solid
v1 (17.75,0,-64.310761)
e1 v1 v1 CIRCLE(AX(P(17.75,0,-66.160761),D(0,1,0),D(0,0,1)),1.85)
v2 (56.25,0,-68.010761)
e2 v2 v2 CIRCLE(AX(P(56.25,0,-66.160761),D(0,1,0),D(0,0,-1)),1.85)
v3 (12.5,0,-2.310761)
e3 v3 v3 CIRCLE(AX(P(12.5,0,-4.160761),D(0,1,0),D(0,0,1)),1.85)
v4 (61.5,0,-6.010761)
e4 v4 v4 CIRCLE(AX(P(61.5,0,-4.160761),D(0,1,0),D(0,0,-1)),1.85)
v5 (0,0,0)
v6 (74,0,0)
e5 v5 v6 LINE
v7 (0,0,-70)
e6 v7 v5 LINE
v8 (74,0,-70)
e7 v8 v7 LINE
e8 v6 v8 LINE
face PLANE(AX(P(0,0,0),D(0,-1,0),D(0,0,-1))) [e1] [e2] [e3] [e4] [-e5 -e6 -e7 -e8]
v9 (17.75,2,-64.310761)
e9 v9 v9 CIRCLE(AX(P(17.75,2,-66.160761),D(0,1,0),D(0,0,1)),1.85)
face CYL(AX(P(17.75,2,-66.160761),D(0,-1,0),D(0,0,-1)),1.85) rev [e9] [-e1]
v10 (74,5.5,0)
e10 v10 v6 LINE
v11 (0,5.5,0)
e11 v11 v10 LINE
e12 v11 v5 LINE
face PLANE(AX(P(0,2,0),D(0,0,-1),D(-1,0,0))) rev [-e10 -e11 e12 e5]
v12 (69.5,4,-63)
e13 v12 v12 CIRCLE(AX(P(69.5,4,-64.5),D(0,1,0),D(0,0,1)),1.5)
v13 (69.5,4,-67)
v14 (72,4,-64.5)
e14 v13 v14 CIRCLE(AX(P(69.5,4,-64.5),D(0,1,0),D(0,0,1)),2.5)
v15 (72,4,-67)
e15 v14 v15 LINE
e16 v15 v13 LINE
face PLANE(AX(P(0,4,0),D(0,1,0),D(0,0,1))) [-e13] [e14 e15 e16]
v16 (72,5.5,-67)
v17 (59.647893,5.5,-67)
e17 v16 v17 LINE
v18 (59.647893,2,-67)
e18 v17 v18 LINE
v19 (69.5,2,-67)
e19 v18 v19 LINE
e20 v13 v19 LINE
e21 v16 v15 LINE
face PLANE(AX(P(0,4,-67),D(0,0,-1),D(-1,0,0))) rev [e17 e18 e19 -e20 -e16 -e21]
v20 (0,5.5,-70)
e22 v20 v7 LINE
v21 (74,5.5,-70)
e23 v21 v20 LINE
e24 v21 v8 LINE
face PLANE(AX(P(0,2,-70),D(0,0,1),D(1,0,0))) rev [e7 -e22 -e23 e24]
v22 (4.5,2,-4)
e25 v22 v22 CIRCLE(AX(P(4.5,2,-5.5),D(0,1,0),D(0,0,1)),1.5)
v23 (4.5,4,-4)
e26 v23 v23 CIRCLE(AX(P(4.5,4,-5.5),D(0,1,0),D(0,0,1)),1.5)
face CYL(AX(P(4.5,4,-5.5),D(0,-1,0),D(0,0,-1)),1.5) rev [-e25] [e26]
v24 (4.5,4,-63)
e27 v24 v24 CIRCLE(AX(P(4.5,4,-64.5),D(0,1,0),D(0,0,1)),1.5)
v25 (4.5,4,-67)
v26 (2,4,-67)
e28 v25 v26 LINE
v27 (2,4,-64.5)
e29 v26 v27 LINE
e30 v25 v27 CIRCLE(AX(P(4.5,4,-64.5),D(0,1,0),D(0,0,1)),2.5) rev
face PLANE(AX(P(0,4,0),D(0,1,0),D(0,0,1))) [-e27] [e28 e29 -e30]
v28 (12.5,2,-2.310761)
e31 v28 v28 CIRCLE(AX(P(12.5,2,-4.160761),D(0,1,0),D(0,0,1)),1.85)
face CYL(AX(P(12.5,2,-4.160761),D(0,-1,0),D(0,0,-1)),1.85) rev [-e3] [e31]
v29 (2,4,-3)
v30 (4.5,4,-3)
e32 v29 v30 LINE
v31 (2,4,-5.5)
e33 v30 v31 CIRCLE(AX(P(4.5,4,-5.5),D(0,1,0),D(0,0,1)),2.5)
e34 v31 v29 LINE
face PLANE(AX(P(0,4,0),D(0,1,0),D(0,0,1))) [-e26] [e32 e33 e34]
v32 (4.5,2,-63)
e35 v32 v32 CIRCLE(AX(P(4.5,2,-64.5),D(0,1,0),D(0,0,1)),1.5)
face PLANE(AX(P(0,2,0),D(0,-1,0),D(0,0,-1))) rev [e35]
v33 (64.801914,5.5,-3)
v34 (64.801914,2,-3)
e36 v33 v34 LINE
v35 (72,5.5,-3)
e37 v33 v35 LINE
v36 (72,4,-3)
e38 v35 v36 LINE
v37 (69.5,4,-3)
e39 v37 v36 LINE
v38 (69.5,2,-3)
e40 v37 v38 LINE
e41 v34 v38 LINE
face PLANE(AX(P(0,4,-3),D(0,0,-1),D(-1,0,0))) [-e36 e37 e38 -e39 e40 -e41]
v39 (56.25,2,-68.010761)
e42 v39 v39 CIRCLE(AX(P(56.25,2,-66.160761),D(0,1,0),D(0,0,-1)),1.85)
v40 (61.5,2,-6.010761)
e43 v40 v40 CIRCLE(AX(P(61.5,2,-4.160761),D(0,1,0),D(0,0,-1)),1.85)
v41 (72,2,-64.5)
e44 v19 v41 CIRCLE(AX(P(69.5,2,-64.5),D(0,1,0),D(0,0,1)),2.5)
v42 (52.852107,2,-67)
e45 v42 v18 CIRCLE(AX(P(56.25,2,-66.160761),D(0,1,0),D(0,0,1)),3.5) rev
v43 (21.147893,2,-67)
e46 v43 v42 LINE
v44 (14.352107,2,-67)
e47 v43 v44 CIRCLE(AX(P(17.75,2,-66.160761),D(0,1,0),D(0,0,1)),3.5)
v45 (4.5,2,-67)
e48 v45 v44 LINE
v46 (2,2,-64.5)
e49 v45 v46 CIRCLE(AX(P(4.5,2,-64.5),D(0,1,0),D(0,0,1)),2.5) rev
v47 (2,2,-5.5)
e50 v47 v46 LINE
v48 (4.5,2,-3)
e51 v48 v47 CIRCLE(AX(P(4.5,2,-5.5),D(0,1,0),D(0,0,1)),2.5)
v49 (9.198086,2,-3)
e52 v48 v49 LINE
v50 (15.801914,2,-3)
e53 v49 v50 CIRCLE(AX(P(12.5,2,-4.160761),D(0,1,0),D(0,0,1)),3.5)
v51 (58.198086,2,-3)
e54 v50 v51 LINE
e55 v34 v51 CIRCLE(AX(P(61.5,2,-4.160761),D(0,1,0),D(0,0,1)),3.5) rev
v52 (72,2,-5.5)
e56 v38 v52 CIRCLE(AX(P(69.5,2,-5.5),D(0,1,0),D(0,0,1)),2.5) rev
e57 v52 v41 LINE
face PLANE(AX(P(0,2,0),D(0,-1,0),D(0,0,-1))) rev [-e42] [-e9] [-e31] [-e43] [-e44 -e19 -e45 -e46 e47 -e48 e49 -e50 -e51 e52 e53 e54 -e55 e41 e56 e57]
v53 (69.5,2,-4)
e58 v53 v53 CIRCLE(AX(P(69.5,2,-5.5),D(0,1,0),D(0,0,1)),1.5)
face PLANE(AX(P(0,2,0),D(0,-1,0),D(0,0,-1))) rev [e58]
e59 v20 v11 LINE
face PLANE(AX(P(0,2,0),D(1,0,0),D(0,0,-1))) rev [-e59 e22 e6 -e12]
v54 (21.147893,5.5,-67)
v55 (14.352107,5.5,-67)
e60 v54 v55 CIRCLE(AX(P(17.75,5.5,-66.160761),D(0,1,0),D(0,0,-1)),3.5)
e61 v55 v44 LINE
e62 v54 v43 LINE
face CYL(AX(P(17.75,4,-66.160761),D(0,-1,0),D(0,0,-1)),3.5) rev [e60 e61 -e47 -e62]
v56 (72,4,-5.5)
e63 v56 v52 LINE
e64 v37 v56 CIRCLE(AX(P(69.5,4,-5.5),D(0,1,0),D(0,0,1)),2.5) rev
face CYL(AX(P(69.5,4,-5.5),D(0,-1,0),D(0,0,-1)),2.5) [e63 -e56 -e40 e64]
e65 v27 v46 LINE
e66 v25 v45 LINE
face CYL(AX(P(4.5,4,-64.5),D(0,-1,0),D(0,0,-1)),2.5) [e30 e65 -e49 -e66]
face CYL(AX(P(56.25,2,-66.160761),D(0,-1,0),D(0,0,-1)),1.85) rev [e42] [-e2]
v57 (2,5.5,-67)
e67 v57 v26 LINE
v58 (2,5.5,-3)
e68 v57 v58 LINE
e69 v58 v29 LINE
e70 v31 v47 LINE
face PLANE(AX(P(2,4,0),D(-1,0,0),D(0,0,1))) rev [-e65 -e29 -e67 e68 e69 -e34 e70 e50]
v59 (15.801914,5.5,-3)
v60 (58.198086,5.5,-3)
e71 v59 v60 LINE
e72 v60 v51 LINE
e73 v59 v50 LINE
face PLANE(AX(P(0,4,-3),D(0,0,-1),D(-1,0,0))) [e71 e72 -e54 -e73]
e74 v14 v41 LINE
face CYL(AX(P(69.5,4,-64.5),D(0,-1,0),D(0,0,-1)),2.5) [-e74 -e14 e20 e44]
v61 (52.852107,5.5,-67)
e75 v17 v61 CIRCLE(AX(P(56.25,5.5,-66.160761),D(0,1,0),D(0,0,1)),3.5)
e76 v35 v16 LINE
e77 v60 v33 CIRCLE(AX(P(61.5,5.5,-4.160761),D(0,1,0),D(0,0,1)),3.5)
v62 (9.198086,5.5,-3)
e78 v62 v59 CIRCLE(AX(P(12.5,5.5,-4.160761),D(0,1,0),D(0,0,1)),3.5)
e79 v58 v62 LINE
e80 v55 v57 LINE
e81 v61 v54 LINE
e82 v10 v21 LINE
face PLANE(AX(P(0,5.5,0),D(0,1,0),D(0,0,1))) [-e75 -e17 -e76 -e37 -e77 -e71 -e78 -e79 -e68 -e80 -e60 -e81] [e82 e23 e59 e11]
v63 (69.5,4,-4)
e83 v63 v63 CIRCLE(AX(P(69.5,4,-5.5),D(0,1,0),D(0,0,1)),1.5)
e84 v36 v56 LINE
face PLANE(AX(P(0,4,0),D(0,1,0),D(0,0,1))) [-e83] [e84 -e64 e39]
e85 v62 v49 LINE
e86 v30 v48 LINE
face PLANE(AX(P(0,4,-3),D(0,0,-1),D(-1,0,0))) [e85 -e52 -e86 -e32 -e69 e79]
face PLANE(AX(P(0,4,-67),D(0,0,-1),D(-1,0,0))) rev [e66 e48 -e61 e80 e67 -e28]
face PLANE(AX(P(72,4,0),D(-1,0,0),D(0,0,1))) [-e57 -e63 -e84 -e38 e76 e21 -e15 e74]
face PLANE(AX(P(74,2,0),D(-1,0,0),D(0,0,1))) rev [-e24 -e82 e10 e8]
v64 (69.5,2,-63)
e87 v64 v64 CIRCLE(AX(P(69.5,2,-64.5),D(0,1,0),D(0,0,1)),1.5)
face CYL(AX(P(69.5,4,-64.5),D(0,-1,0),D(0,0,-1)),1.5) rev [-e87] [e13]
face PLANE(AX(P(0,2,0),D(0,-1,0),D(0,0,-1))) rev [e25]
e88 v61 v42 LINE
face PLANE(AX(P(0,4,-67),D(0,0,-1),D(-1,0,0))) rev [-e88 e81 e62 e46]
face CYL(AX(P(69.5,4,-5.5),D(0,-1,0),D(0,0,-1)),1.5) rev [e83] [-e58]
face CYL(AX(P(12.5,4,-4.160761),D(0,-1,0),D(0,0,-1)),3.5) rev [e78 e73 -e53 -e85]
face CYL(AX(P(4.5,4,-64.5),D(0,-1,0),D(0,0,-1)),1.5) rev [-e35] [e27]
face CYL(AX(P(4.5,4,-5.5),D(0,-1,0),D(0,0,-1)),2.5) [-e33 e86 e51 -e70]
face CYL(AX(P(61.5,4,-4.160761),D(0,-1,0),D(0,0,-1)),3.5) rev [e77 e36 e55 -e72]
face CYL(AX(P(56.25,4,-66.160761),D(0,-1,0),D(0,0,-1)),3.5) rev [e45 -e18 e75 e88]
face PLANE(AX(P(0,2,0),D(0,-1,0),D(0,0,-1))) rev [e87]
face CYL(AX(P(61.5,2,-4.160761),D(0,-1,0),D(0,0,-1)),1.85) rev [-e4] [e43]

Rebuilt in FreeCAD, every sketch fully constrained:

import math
import FreeCAD as App
import Part
import Sketcher

V = App.Vector

doc = App.newDocument("Part")
params = doc.addObject("Spreadsheet::Sheet", "Params")
for row, (alias, value) in enumerate([
    ("sketch1_diameter", "3.7 mm"),
    ("sketch1_width", "74 mm"),
    ("sketch1_height", "70 mm"),
    ("pad1_length", "2 mm"),
    ("sketch2_diameter", "3 mm"),
    ("sketch2_radius", "2.5 mm"),
    ("sketch2_radius2", "3.5 mm"),
    ("sketch2_width", "74 mm"),
    ("sketch2_height", "70 mm"),
    ("pad2_length", "2 mm"),
    ("sketch3_radius", "3.5 mm"),
    ("sketch3_width", "74 mm"),
    ("sketch3_height", "70 mm"),
    ("sketch3_height2", "64 mm"),
    ("pad3_length", "1.5 mm"),
], start=1):
    params.set(f"A{row}", alias)
    params.set(f"B{row}", "=" + value)
    params.setAlias(f"B{row}", alias)

body = doc.addObject("PartDesign::Body", "Body")

# Sketch on XZ plane
sketch1 = body.newObject("Sketcher::SketchObject", "Sketch")
sketch1.AttachmentSupport = (doc.getObject("XZ_Plane"), [""])
sketch1.MapMode = "FlatFace"
sketch1.addGeometry([
    Part.LineSegment(V(0, 0, 0), V(74, 0, 0)),  # 0
    Part.LineSegment(V(74, 0, 0), V(74, -70, 0)),  # 1
    Part.LineSegment(V(74, -70, 0), V(0, -70, 0)),  # 2
    Part.LineSegment(V(0, -70, 0), V(0, 0, 0)),  # 3
    Part.Circle(V(12.5, -4.2, 0), V(0, 0, 1), 1.9),  # 4
    Part.Circle(V(61.5, -4.2, 0), V(0, 0, 1), 1.9),  # 5
    Part.Circle(V(17.8, -66.2, 0), V(0, 0, 1), 1.9),  # 6
    Part.Circle(V(56.2, -66.2, 0), V(0, 0, 1), 1.9),  # 7
], False)
sketch1.addConstraint([
    Sketcher.Constraint("Coincident", 0, 2, 1, 1),
    Sketcher.Constraint("Coincident", 1, 2, 2, 1),
    Sketcher.Constraint("Coincident", 2, 2, 3, 1),
    Sketcher.Constraint("Coincident", 3, 2, 0, 1),
    Sketcher.Constraint("Horizontal", 0),
    Sketcher.Constraint("Vertical", 1),
    Sketcher.Constraint("Horizontal", 2),
    Sketcher.Constraint("Vertical", 3),
    Sketcher.Constraint("Coincident", 3, 2, -1, 1),
    Sketcher.Constraint("Equal", 4, 5),
    Sketcher.Constraint("Equal", 5, 6),
    Sketcher.Constraint("Equal", 6, 7),
    Sketcher.Constraint("Horizontal", 4, 3, 5, 3),
    Sketcher.Constraint("Horizontal", 6, 3, 7, 3),
    Sketcher.Constraint("Diameter", 4, 3.7),
    Sketcher.Constraint("DistanceX", 0, 1, 0, 2, 74.0),
    Sketcher.Constraint("DistanceY", 1, 2, 1, 1, 70.0),
    Sketcher.Constraint("DistanceX", 4, 3, 5, 3, 49.0),
    Sketcher.Constraint("DistanceY", 6, 3, 4, 3, 62.0),
    Sketcher.Constraint("DistanceX", -1, 1, 4, 3, 12.5),
    Sketcher.Constraint("DistanceX", 6, 3, 7, 3, 38.5),
    Sketcher.Constraint("DistanceX", -1, 1, 6, 3, 17.75),
    Sketcher.Constraint("DistanceY", 4, 3, -1, 1, 4.160761),
])
sketch1.setExpression("Constraints[14]", "Params.sketch1_diameter")
sketch1.setExpression("Constraints[15]", "Params.sketch1_width")
sketch1.setExpression("Constraints[16]", "Params.sketch1_height")
pad1 = body.newObject("PartDesign::Pad", "Pad")
pad1.Profile = sketch1
pad1.setExpression("Length", "Params.pad1_length")
pad1.Reversed = True

# Sketch on XZ plane
sketch2 = body.newObject("Sketcher::SketchObject", "Sketch001")
sketch2.AttachmentSupport = (doc.getObject("XZ_Plane"), [""])
sketch2.MapMode = "FlatFace"
sketch2.AttachmentOffset = App.Placement(V(0, 0, -2), App.Rotation())
sketch2.addGeometry([
    Part.LineSegment(V(0, -70, 0), V(0, 0, 0)),  # 0
    Part.LineSegment(V(0, 0, 0), V(74, 0, 0)),  # 1
    Part.LineSegment(V(74, 0, 0), V(74, -70, 0)),  # 2
    Part.LineSegment(V(74, -70, 0), V(0, -70, 0)),  # 3
    Part.Circle(V(4.5, -5.5, 0), V(0, 0, 1), 1.5),  # 4
    Part.Circle(V(69.5, -5.5, 0), V(0, 0, 1), 1.5),  # 5
    Part.Circle(V(4.5, -64.5, 0), V(0, 0, 1), 1.5),  # 6
    Part.LineSegment(V(9.2, -3, 0), V(4.5, -3, 0)),  # 7
    Part.ArcOfCircle(Part.Circle(V(4.5, -5.5, 0), V(0, 0, 1), 2.5), math.radians(180), math.radians(450)),  # 8
    Part.LineSegment(V(2, -5.5, 0), V(2, -64.5, 0)),  # 9
    Part.ArcOfCircle(Part.Circle(V(4.5, -64.5, 0), V(0, 0, 1), 2.5), math.radians(-90), math.radians(180)),  # 10
    Part.LineSegment(V(4.5, -67, 0), V(14.4, -67, 0)),  # 11
    Part.ArcOfCircle(Part.Circle(V(17.8, -66.2, 0), V(0, 0, 1), 3.5), math.radians(-166), math.radians(-14)),  # 12
    Part.LineSegment(V(21.1, -67, 0), V(52.9, -67, 0)),  # 13
    Part.ArcOfCircle(Part.Circle(V(56.2, -66.2, 0), V(0, 0, 1), 3.5), math.radians(-166), math.radians(-14)),  # 14
    Part.LineSegment(V(59.6, -67, 0), V(69.5, -67, 0)),  # 15
    Part.ArcOfCircle(Part.Circle(V(69.5, -64.5, 0), V(0, 0, 1), 2.5), math.radians(0), math.radians(270)),  # 16
    Part.LineSegment(V(72, -64.5, 0), V(72, -5.5, 0)),  # 17
    Part.ArcOfCircle(Part.Circle(V(69.5, -5.5, 0), V(0, 0, 1), 2.5), math.radians(90), math.radians(360)),  # 18
    Part.LineSegment(V(69.5, -3, 0), V(64.8, -3, 0)),  # 19
    Part.ArcOfCircle(Part.Circle(V(61.5, -4.2, 0), V(0, 0, 1), 3.5), math.radians(19), math.radians(161)),  # 20
    Part.LineSegment(V(58.2, -3, 0), V(15.8, -3, 0)),  # 21
    Part.ArcOfCircle(Part.Circle(V(12.5, -4.2, 0), V(0, 0, 1), 3.5), math.radians(19), math.radians(161)),  # 22
    Part.Circle(V(69.5, -64.5, 0), V(0, 0, 1), 1.5),  # 23
], False)
sketch2.addConstraint([
    Sketcher.Constraint("Coincident", 0, 2, 1, 1),
    Sketcher.Constraint("Coincident", 1, 2, 2, 1),
    Sketcher.Constraint("Coincident", 2, 2, 3, 1),
    Sketcher.Constraint("Coincident", 3, 2, 0, 1),
    Sketcher.Constraint("Tangent", 7, 2, 8, 2),
    Sketcher.Constraint("Tangent", 8, 1, 9, 1),
    Sketcher.Constraint("Tangent", 9, 2, 10, 2),
    Sketcher.Constraint("Tangent", 10, 1, 11, 1),
    Sketcher.Constraint("Coincident", 11, 2, 12, 1),
    Sketcher.Constraint("Coincident", 12, 2, 13, 1),
    Sketcher.Constraint("Coincident", 13, 2, 14, 1),
    Sketcher.Constraint("Coincident", 14, 2, 15, 1),
    Sketcher.Constraint("Tangent", 15, 2, 16, 2),
    Sketcher.Constraint("Tangent", 16, 1, 17, 1),
    Sketcher.Constraint("Tangent", 17, 2, 18, 2),
    Sketcher.Constraint("Tangent", 18, 1, 19, 1),
    Sketcher.Constraint("Coincident", 19, 2, 20, 1),
    Sketcher.Constraint("Coincident", 20, 2, 21, 1),
    Sketcher.Constraint("Coincident", 21, 2, 22, 1),
    Sketcher.Constraint("Coincident", 22, 2, 7, 1),
    Sketcher.Constraint("Vertical", 0),
    Sketcher.Constraint("Horizontal", 1),
    Sketcher.Constraint("Vertical", 2),
    Sketcher.Constraint("Horizontal", 3),
    Sketcher.Constraint("Horizontal", 7),
    Sketcher.Constraint("Vertical", 9),
    Sketcher.Constraint("Horizontal", 11),
    Sketcher.Constraint("Horizontal", 13),
    Sketcher.Constraint("Horizontal", 15),
    Sketcher.Constraint("Vertical", 17),
    Sketcher.Constraint("Horizontal", 19),
    Sketcher.Constraint("Horizontal", 21),
    Sketcher.Constraint("Coincident", 0, 2, -1, 1),
    Sketcher.Constraint("Coincident", 8, 3, 4, 3),
    Sketcher.Constraint("Coincident", 10, 3, 6, 3),
    Sketcher.Constraint("Coincident", 18, 3, 5, 3),
    Sketcher.Constraint("Coincident", 23, 3, 16, 3),
    Sketcher.Constraint("Equal", 4, 5),
    Sketcher.Constraint("Equal", 5, 6),
    Sketcher.Constraint("Equal", 8, 10),
    Sketcher.Constraint("Equal", 12, 14),
    Sketcher.Constraint("Equal", 10, 16),
    Sketcher.Constraint("Equal", 16, 18),
    Sketcher.Constraint("Equal", 14, 20),
    Sketcher.Constraint("Equal", 20, 22),
    Sketcher.Constraint("Equal", 6, 23),
    Sketcher.Constraint("Horizontal", 4, 3, 5, 3),
    Sketcher.Constraint("Horizontal", 12, 3, 14, 3),
    Sketcher.Constraint("Horizontal", 10, 3, 16, 3),
    Sketcher.Constraint("Horizontal", 20, 3, 22, 3),
    Sketcher.Constraint("Horizontal", 11, 2, 12, 2),
    Sketcher.Constraint("Horizontal", 19, 2, 20, 2),
    Sketcher.Constraint("Equal", 11, 15),
    Sketcher.Constraint("Equal", 7, 19),
    Sketcher.Constraint("Diameter", 4, 3.0),
    Sketcher.Constraint("Radius", 8, 2.5),
    Sketcher.Constraint("Radius", 12, 3.5),
    Sketcher.Constraint("DistanceX", 1, 1, 1, 2, 74.0),
    Sketcher.Constraint("DistanceY", 0, 1, 0, 2, 70.0),
    Sketcher.Constraint("DistanceY", 9, 2, 9, 1, 59.0),
    Sketcher.Constraint("DistanceY", 7, 2, -1, 1, 3.0),
    Sketcher.Constraint("DistanceX", -1, 1, 8, 1, 2.0),
    Sketcher.Constraint("DistanceX", -1, 1, 16, 1, 72.0),
    Sketcher.Constraint("DistanceX", 20, 3, 5, 3, 8.0),
    Sketcher.Constraint("DistanceX", 12, 3, 14, 3, 38.5),
    Sketcher.Constraint("DistanceX", 7, 2, 7, 1, 4.698086),
    Sketcher.Constraint("DistanceX", 11, 1, 11, 2, 9.852107),
])
sketch2.setExpression("Constraints[54]", "Params.sketch2_diameter")
sketch2.setExpression("Constraints[55]", "Params.sketch2_radius")
sketch2.setExpression("Constraints[56]", "Params.sketch2_radius2")
sketch2.setExpression("Constraints[57]", "Params.sketch2_width")
sketch2.setExpression("Constraints[58]", "Params.sketch2_height")
pad2 = body.newObject("PartDesign::Pad", "Pad001")
pad2.Profile = sketch2
pad2.setExpression("Length", "Params.pad2_length")
pad2.Reversed = True

# Sketch on XZ plane
sketch3 = body.newObject("Sketcher::SketchObject", "Sketch002")
sketch3.AttachmentSupport = (doc.getObject("XZ_Plane"), [""])
sketch3.MapMode = "FlatFace"
sketch3.AttachmentOffset = App.Placement(V(0, 0, -4), App.Rotation())
sketch3.addGeometry([
    Part.LineSegment(V(0, -70, 0), V(0, 0, 0)),  # 0
    Part.LineSegment(V(0, 0, 0), V(74, 0, 0)),  # 1
    Part.LineSegment(V(74, 0, 0), V(74, -70, 0)),  # 2
    Part.LineSegment(V(74, -70, 0), V(0, -70, 0)),  # 3
    Part.ArcOfCircle(Part.Circle(V(12.5, -4.2, 0), V(0, 0, 1), 3.5), math.radians(19), math.radians(161)),  # 4
    Part.LineSegment(V(9.2, -3, 0), V(2, -3, 0)),  # 5
    Part.LineSegment(V(2, -3, 0), V(2, -67, 0)),  # 6
    Part.LineSegment(V(2, -67, 0), V(14.4, -67, 0)),  # 7
    Part.ArcOfCircle(Part.Circle(V(17.8, -66.2, 0), V(0, 0, 1), 3.5), math.radians(-166), math.radians(-14)),  # 8
    Part.LineSegment(V(21.1, -67, 0), V(52.9, -67, 0)),  # 9
    Part.ArcOfCircle(Part.Circle(V(56.2, -66.2, 0), V(0, 0, 1), 3.5), math.radians(-166), math.radians(-14)),  # 10
    Part.LineSegment(V(59.6, -67, 0), V(72, -67, 0)),  # 11
    Part.LineSegment(V(72, -67, 0), V(72, -3, 0)),  # 12
    Part.LineSegment(V(72, -3, 0), V(64.8, -3, 0)),  # 13
    Part.ArcOfCircle(Part.Circle(V(61.5, -4.2, 0), V(0, 0, 1), 3.5), math.radians(19), math.radians(161)),  # 14
    Part.LineSegment(V(58.2, -3, 0), V(15.8, -3, 0)),  # 15
], False)
sketch3.addConstraint([
    Sketcher.Constraint("Coincident", 0, 2, 1, 1),
    Sketcher.Constraint("Coincident", 1, 2, 2, 1),
    Sketcher.Constraint("Coincident", 2, 2, 3, 1),
    Sketcher.Constraint("Coincident", 3, 2, 0, 1),
    Sketcher.Constraint("Coincident", 4, 2, 5, 1),
    Sketcher.Constraint("Coincident", 5, 2, 6, 1),
    Sketcher.Constraint("Coincident", 6, 2, 7, 1),
    Sketcher.Constraint("Coincident", 7, 2, 8, 1),
    Sketcher.Constraint("Coincident", 8, 2, 9, 1),
    Sketcher.Constraint("Coincident", 9, 2, 10, 1),
    Sketcher.Constraint("Coincident", 10, 2, 11, 1),
    Sketcher.Constraint("Coincident", 11, 2, 12, 1),
    Sketcher.Constraint("Coincident", 12, 2, 13, 1),
    Sketcher.Constraint("Coincident", 13, 2, 14, 1),
    Sketcher.Constraint("Coincident", 14, 2, 15, 1),
    Sketcher.Constraint("Coincident", 15, 2, 4, 1),
    Sketcher.Constraint("Vertical", 0),
    Sketcher.Constraint("Horizontal", 1),
    Sketcher.Constraint("Vertical", 2),
    Sketcher.Constraint("Horizontal", 3),
    Sketcher.Constraint("Horizontal", 5),
    Sketcher.Constraint("Vertical", 6),
    Sketcher.Constraint("Horizontal", 7),
    Sketcher.Constraint("Horizontal", 9),
    Sketcher.Constraint("Horizontal", 11),
    Sketcher.Constraint("Vertical", 12),
    Sketcher.Constraint("Horizontal", 13),
    Sketcher.Constraint("Horizontal", 15),
    Sketcher.Constraint("Coincident", 0, 2, -1, 1),
    Sketcher.Constraint("Equal", 4, 8),
    Sketcher.Constraint("Equal", 8, 10),
    Sketcher.Constraint("Equal", 10, 14),
    Sketcher.Constraint("Horizontal", 8, 3, 10, 3),
    Sketcher.Constraint("Horizontal", 4, 3, 14, 3),
    Sketcher.Constraint("Horizontal", 7, 2, 8, 2),
    Sketcher.Constraint("Horizontal", 9, 2, 10, 2),
    Sketcher.Constraint("Horizontal", 5, 2, 12, 2),
    Sketcher.Constraint("Horizontal", 13, 2, 14, 2),
    Sketcher.Constraint("Equal", 7, 11),
    Sketcher.Constraint("Equal", 5, 13),
    Sketcher.Constraint("Radius", 4, 3.5),
    Sketcher.Constraint("DistanceX", 1, 1, 1, 2, 74.0),
    Sketcher.Constraint("DistanceY", 0, 1, 0, 2, 70.0),
    Sketcher.Constraint("DistanceY", 6, 2, 6, 1, 64.0),
    Sketcher.Constraint("DistanceY", 4, 2, -1, 1, 3.0),
    Sketcher.Constraint("DistanceX", -1, 1, 5, 2, 2.0),
    Sketcher.Constraint("DistanceX", -1, 1, 11, 2, 72.0),
    Sketcher.Constraint("DistanceY", 8, 3, 4, 3, 62.0),
    Sketcher.Constraint("DistanceX", 4, 3, 14, 3, 49.0),
    Sketcher.Constraint("DistanceX", 8, 3, 10, 3, 38.5),
    Sketcher.Constraint("DistanceX", 5, 2, 5, 1, 7.198086),
])
sketch3.setExpression("Constraints[40]", "Params.sketch3_radius")
sketch3.setExpression("Constraints[41]", "Params.sketch3_width")
sketch3.setExpression("Constraints[42]", "Params.sketch3_height")
sketch3.setExpression("Constraints[43]", "Params.sketch3_height2")
pad3 = body.newObject("PartDesign::Pad", "Pad002")
pad3.Profile = sketch3
pad3.setExpression("Length", "Params.pad3_length")
pad3.Reversed = True

doc.recompute()
